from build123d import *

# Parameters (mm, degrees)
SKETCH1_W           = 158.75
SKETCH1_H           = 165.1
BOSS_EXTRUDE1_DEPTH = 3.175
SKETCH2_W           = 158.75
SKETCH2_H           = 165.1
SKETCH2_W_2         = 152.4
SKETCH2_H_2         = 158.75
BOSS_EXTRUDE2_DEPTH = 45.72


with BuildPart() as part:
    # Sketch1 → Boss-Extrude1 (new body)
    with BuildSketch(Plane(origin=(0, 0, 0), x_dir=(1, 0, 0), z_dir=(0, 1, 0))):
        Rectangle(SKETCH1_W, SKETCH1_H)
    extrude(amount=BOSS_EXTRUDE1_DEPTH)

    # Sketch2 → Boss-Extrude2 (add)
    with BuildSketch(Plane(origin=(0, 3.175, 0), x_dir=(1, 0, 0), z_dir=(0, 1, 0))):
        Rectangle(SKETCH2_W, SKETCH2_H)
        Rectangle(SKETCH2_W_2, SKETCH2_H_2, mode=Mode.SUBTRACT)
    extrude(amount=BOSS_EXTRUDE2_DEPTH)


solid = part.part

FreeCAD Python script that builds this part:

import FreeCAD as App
import Part
import Sketcher
from FreeCAD import Vector
Q = App.Units.Quantity

doc = App.newDocument("Part")
body = doc.addObject("PartDesign::Body", "Body")

# Sketch on XZ plane
sketch1 = body.newObject("Sketcher::SketchObject", "Sketch")
sketch1.AttachmentSupport = (doc.getObject("XZ_Plane"), [""])
sketch1.MapMode = "FlatFace"
sketch1.addGeometry([
    Part.LineSegment(Vector(-79, -83, 0), Vector(-79, 83, 0)),
    Part.LineSegment(Vector(-79, 83, 0), Vector(79, 83, 0)),
    Part.LineSegment(Vector(79, 83, 0), Vector(79, -83, 0)),
    Part.LineSegment(Vector(79, -83, 0), Vector(-79, -83, 0)),
], False)
sketch1.addConstraint([
    Sketcher.Constraint("Coincident", 0, 2, 1, 1),
    Sketcher.Constraint("Coincident", 1, 2, 2, 1),
    Sketcher.Constraint("Coincident", 2, 2, 3, 1),
    Sketcher.Constraint("Coincident", 3, 2, 0, 1),
    Sketcher.Constraint("Vertical", 0),
    Sketcher.Constraint("Horizontal", 1),
    Sketcher.Constraint("Vertical", 2),
    Sketcher.Constraint("Horizontal", 3),
    Sketcher.Constraint("Symmetric", 0, 2, 2, 2, -1, 1),
    Sketcher.Constraint("DistanceY", 0, 1, 0, 2, Q("6.5 in")),
    Sketcher.Constraint("DistanceX", 1, 1, 1, 2, Q("6.25 in")),
])
pad1 = body.newObject("PartDesign::Pad", "Pad")
pad1.Profile = sketch1
pad1.Length = Q("0.125 in")
pad1.Reversed = True

# Sketch on XZ plane
sketch2 = body.newObject("Sketcher::SketchObject", "Sketch001")
sketch2.AttachmentSupport = (doc.getObject("XZ_Plane"), [""])
sketch2.MapMode = "FlatFace"
sketch2.AttachmentOffset = App.Placement(Vector(0, 0, -0.125 * 25.4), App.Rotation())
sketch2.addGeometry([
    Part.LineSegment(Vector(-79, -83, 0), Vector(-79, 83, 0)),  # 0
    Part.LineSegment(Vector(-79, 83, 0), Vector(79, 83, 0)),  # 1
    Part.LineSegment(Vector(79, 83, 0), Vector(79, -83, 0)),  # 2
    Part.LineSegment(Vector(79, -83, 0), Vector(-79, -83, 0)),  # 3
    Part.LineSegment(Vector(76, 79, 0), Vector(-76, 79, 0)),  # 4
    Part.LineSegment(Vector(-76, 79, 0), Vector(-76, -79, 0)),  # 5
    Part.LineSegment(Vector(-76, -79, 0), Vector(76, -79, 0)),  # 6
    Part.LineSegment(Vector(76, -79, 0), Vector(76, 79, 0)),  # 7
], False)
sketch2.addConstraint([
    Sketcher.Constraint("Coincident", 0, 2, 1, 1),
    Sketcher.Constraint("Coincident", 1, 2, 2, 1),
    Sketcher.Constraint("Coincident", 2, 2, 3, 1),
    Sketcher.Constraint("Coincident", 3, 2, 0, 1),
    Sketcher.Constraint("Coincident", 4, 2, 5, 1),
    Sketcher.Constraint("Coincident", 5, 2, 6, 1),
    Sketcher.Constraint("Coincident", 6, 2, 7, 1),
    Sketcher.Constraint("Coincident", 7, 2, 4, 1),
    Sketcher.Constraint("Vertical", 0),
    Sketcher.Constraint("Horizontal", 1),
    Sketcher.Constraint("Vertical", 2),
    Sketcher.Constraint("Horizontal", 3),
    Sketcher.Constraint("Horizontal", 4),
    Sketcher.Constraint("Vertical", 5),
    Sketcher.Constraint("Horizontal", 6),
    Sketcher.Constraint("Vertical", 7),
    Sketcher.Constraint("Symmetric", 0, 2, 2, 2, -1, 1),
    Sketcher.Constraint("Symmetric", 4, 2, 6, 2, -1, 1),
    Sketcher.Constraint("Equal", 3, 5),
    Sketcher.Constraint("DistanceX", 4, 2, 4, 1, Q("6 in")),
    Sketcher.Constraint("DistanceY", 0, 1, 0, 2, Q("6.5 in")),
    Sketcher.Constraint("DistanceX", 1, 1, 1, 2, Q("6.25 in")),
])
pad2 = body.newObject("PartDesign::Pad", "Pad001")
pad2.Profile = sketch2
pad2.Length = Q("1.8 in")
pad2.Reversed = True

doc.recompute()
